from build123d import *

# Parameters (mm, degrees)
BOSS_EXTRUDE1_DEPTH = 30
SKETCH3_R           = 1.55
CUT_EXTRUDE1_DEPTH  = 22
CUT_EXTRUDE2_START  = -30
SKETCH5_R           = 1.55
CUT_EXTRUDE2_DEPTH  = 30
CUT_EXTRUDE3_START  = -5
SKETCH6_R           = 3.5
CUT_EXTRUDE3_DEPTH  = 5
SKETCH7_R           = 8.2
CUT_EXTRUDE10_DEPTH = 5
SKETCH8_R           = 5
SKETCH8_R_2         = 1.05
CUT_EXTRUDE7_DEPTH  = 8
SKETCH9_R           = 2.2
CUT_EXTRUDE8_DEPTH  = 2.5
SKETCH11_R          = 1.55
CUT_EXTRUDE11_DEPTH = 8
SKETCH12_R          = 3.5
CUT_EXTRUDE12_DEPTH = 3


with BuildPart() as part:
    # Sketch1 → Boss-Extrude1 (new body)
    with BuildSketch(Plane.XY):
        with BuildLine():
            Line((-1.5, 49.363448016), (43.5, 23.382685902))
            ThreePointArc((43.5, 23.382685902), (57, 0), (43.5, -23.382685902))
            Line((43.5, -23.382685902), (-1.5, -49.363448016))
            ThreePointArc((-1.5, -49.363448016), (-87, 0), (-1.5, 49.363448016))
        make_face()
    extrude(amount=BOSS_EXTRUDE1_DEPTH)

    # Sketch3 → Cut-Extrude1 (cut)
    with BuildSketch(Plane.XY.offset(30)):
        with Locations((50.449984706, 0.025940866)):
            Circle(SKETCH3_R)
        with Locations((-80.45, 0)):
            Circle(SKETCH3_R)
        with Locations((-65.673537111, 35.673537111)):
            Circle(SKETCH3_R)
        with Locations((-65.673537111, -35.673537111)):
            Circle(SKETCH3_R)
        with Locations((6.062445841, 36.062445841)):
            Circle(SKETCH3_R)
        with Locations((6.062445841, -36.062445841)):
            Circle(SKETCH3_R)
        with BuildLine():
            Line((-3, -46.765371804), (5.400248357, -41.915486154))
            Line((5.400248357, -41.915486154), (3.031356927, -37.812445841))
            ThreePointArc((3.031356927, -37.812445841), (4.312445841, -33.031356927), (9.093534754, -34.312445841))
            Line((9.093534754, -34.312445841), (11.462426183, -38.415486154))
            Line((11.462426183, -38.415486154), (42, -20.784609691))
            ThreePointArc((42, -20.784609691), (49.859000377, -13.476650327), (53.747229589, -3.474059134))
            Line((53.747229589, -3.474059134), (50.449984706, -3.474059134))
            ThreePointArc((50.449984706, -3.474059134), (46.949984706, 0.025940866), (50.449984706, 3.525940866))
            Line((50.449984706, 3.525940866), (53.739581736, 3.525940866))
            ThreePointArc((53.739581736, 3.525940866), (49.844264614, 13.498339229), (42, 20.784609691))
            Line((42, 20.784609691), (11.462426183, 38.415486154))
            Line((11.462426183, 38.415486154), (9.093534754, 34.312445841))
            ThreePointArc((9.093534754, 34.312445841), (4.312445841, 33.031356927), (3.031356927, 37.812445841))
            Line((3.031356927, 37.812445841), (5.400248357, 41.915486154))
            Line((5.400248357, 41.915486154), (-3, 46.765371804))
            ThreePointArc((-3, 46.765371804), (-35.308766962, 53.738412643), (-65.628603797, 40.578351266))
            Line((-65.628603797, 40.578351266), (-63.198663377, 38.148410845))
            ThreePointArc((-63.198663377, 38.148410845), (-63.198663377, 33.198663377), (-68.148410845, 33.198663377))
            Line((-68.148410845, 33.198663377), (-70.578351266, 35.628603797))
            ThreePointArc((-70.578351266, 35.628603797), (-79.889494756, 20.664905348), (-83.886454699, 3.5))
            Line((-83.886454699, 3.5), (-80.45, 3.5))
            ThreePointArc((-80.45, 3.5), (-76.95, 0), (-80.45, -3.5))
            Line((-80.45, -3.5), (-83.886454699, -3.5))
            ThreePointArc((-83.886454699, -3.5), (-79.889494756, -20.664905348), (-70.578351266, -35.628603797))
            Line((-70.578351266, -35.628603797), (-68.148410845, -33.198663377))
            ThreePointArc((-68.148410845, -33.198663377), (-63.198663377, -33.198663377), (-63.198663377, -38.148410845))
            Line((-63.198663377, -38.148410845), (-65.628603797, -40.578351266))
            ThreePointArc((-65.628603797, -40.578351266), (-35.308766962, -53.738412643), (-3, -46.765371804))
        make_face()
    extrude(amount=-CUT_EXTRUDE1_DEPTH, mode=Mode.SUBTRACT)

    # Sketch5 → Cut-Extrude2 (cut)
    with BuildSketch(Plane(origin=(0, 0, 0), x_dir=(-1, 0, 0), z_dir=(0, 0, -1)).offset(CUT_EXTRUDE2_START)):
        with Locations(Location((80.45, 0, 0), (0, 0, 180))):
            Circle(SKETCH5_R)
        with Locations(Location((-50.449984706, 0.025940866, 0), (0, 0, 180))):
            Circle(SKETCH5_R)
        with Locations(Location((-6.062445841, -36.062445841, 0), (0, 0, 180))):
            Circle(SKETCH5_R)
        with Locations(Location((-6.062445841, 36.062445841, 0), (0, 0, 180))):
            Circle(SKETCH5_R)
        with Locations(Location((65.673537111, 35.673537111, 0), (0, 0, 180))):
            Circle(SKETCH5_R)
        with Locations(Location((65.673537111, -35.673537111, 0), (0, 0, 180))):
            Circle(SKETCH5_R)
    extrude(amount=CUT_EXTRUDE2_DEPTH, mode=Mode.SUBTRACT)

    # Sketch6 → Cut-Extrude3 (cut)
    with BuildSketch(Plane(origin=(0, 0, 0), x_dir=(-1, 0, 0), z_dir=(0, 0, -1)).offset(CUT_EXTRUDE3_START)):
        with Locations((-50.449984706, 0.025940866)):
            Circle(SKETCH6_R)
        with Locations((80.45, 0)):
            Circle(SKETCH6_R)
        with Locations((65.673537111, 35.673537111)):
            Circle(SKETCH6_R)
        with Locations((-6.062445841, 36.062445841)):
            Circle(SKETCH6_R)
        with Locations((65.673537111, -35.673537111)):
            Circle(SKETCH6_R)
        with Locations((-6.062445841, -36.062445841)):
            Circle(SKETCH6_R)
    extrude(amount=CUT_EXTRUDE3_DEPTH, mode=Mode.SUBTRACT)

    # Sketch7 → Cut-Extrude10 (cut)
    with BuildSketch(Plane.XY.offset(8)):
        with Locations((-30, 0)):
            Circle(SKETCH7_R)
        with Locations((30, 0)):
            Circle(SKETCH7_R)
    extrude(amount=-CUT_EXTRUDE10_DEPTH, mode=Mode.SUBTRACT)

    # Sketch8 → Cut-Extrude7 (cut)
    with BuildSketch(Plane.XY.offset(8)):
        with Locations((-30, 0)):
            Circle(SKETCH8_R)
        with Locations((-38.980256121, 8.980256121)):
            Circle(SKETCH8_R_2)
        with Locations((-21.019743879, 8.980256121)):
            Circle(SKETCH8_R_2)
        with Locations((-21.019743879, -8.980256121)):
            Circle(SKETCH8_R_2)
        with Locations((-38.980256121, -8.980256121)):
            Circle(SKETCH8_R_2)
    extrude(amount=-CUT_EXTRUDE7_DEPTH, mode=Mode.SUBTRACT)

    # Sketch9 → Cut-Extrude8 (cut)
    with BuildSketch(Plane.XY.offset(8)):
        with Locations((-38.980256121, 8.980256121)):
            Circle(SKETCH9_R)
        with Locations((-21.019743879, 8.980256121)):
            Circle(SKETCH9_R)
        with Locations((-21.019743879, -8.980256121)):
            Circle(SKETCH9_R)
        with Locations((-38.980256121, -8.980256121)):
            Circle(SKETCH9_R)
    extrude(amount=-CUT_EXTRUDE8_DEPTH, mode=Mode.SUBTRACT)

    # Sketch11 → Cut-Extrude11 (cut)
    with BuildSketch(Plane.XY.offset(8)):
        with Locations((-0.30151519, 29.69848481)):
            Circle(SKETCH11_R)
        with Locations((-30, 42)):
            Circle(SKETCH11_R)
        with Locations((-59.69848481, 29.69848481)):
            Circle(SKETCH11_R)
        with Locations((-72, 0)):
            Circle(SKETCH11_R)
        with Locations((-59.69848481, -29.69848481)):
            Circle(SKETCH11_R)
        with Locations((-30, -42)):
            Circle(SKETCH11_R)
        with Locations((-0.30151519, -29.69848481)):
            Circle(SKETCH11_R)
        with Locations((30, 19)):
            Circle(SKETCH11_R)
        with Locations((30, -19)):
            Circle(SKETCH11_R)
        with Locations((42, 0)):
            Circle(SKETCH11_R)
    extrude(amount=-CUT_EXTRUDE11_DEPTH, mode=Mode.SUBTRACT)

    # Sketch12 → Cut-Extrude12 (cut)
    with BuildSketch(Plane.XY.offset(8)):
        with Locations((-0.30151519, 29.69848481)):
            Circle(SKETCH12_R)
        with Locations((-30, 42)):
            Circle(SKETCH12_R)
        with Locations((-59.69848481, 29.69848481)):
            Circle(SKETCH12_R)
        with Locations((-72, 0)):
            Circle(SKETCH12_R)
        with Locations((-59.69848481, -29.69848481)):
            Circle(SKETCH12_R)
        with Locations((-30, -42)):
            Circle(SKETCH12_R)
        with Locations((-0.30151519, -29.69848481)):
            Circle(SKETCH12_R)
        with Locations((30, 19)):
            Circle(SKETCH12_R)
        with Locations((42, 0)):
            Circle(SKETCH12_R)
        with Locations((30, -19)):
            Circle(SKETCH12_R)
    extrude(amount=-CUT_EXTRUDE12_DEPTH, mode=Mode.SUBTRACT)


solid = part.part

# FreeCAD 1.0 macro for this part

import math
import FreeCAD as App
import Part
import Sketcher

V = App.Vector
Q = App.Units.Quantity

doc = App.newDocument("Part")
body = doc.addObject("PartDesign::Body", "Body")

# Sketch on XY plane
sketch1 = body.newObject("Sketcher::SketchObject", "Sketch")
sketch1.AttachmentSupport = (doc.getObject("XY_Plane"), [""])
sketch1.MapMode = "FlatFace"
sketch1.addGeometry([
    Part.LineSegment(V(44, 23, 0), V(-2, 49, 0)),
    Part.ArcOfCircle(Part.Circle(V(-30, 0, 0), V(0, 0, 1), 57), math.radians(60), math.radians(300)),
    Part.LineSegment(V(-2, -49, 0), V(44, -23, 0)),
    Part.ArcOfCircle(Part.Circle(V(30, 0, 0), V(0, 0, 1), 27), math.radians(-60), math.radians(60)),
], False)
sketch1.addConstraint([
    Sketcher.Constraint("Tangent", 0, 2, 1, 1),
    Sketcher.Constraint("Tangent", 1, 2, 2, 1),
    Sketcher.Constraint("Tangent", 2, 2, 3, 1),
    Sketcher.Constraint("Tangent", 3, 2, 0, 1),
    Sketcher.Constraint("Symmetric", 1, 3, 3, 3, -1, 1),
    Sketcher.Constraint("PointOnObject", 1, 3, -1),
    Sketcher.Constraint("Radius", 1, Q("57 mm")),
    Sketcher.Constraint("Radius", 3, Q("27 mm")),
    Sketcher.Constraint("Angle", 0, Q("150 deg")),
])
pad1 = body.newObject("PartDesign::Pad", "Pad")
pad1.Profile = sketch1
pad1.Length = 30

# Sketch on XY plane
sketch2 = body.newObject("Sketcher::SketchObject", "Sketch001")
sketch2.AttachmentSupport = (doc.getObject("XY_Plane"), [""])
sketch2.MapMode = "FlatFace"
sketch2.AttachmentOffset = App.Placement(V(0, 0, 30), App.Rotation())
sketch2.addGeometry([
    Part.Circle(V(50.4, 0, 0), V(0, 0, 1), 1.6),  # 0
    Part.Circle(V(-80.5, 0, 0), V(0, 0, 1), 1.6),  # 1
    Part.Circle(V(-65.7, 35.7, 0), V(0, 0, 1), 1.6),  # 2
    Part.Circle(V(-65.7, -35.7, 0), V(0, 0, 1), 1.6),  # 3
    Part.Circle(V(6.1, 36.1, 0), V(0, 0, 1), 1.6),  # 4
    Part.Circle(V(6.1, -36.1, 0), V(0, 0, 1), 1.6),  # 5
    Part.LineSegment(V(-3, -46.8, 0), V(5.4, -41.9, 0)),  # 6
    Part.LineSegment(V(5.4, -41.9, 0), V(3, -37.8, 0)),  # 7
    Part.ArcOfCircle(Part.Circle(V(6.1, -36.1, 0), V(0, 0, 1), 3.5), math.radians(30), math.radians(210)),  # 8
    Part.LineSegment(V(9.1, -34.3, 0), V(11.5, -38.4, 0)),  # 9
    Part.LineSegment(V(11.5, -38.4, 0), V(42, -20.8, 0)),  # 10
    Part.ArcOfCircle(Part.Circle(V(30, 0, 0), V(0, 0, 1), 24), math.radians(-60), math.radians(-8)),  # 11
    Part.LineSegment(V(53.7, -3.5, 0), V(50.4, -3.5, 0)),  # 12
    Part.ArcOfCircle(Part.Circle(V(50.4, 0, 0), V(0, 0, 1), 3.5), math.radians(90), math.radians(270)),  # 13
    Part.LineSegment(V(50.4, 3.5, 0), V(53.7, 3.5, 0)),  # 14
    Part.ArcOfCircle(Part.Circle(V(30, 0, 0), V(0, 0, 1), 24), math.radians(8), math.radians(60)),  # 15
    Part.LineSegment(V(42, 20.8, 0), V(11.5, 38.4, 0)),  # 16
    Part.LineSegment(V(11.5, 38.4, 0), V(9.1, 34.3, 0)),  # 17
    Part.ArcOfCircle(Part.Circle(V(6.1, 36.1, 0), V(0, 0, 1), 3.5), math.radians(150), math.radians(330)),  # 18
    Part.LineSegment(V(3, 37.8, 0), V(5.4, 41.9, 0)),  # 19
    Part.LineSegment(V(5.4, 41.9, 0), V(-3, 46.8, 0)),  # 20
    Part.ArcOfCircle(Part.Circle(V(-30, 0, 0), V(0, 0, 1), 54), math.radians(60), math.radians(131)),  # 21
    Part.LineSegment(V(-65.6, 40.6, 0), V(-63.2, 38.1, 0)),  # 22
    Part.ArcOfCircle(Part.Circle(V(-65.7, 35.7, 0), V(0, 0, 1), 3.5), math.radians(-135), math.radians(45)),  # 23
    Part.LineSegment(V(-68.1, 33.2, 0), V(-70.6, 35.6, 0)),  # 24
    Part.ArcOfCircle(Part.Circle(V(-30, 0, 0), V(0, 0, 1), 54), math.radians(139), math.radians(176)),  # 25
    Part.LineSegment(V(-83.9, 3.5, 0), V(-80.5, 3.5, 0)),  # 26
    Part.ArcOfCircle(Part.Circle(V(-80.5, 0, 0), V(0, 0, 1), 3.5), math.radians(-90), math.radians(90)),  # 27
    Part.LineSegment(V(-80.5, -3.5, 0), V(-83.9, -3.5, 0)),  # 28
    Part.ArcOfCircle(Part.Circle(V(-30, 0, 0), V(0, 0, 1), 54), math.radians(-176), math.radians(-139)),  # 29
    Part.LineSegment(V(-70.6, -35.6, 0), V(-68.1, -33.2, 0)),  # 30
    Part.ArcOfCircle(Part.Circle(V(-65.7, -35.7, 0), V(0, 0, 1), 3.5), math.radians(-45), math.radians(135)),  # 31
    Part.LineSegment(V(-63.2, -38.1, 0), V(-65.6, -40.6, 0)),  # 32
    Part.ArcOfCircle(Part.Circle(V(-30, 0, 0), V(0, 0, 1), 54), math.radians(-131), math.radians(-60)),  # 33
], False)
sketch2.addConstraint([
    Sketcher.Constraint("Coincident", 6, 2, 7, 1),
    Sketcher.Constraint("Tangent", 7, 2, 8, 2),
    Sketcher.Constraint("Tangent", 8, 1, 9, 1),
    Sketcher.Constraint("Coincident", 9, 2, 10, 1),
    Sketcher.Constraint("Tangent", 10, 2, 11, 1),
    Sketcher.Constraint("Coincident", 11, 2, 12, 1),
    Sketcher.Constraint("Tangent", 12, 2, 13, 2),
    Sketcher.Constraint("Tangent", 13, 1, 14, 1),
    Sketcher.Constraint("Coincident", 14, 2, 15, 1),
    Sketcher.Constraint("Tangent", 15, 2, 16, 1),
    Sketcher.Constraint("Coincident", 16, 2, 17, 1),
    Sketcher.Constraint("Tangent", 17, 2, 18, 2),
    Sketcher.Constraint("Tangent", 18, 1, 19, 1),
    Sketcher.Constraint("Coincident", 19, 2, 20, 1),
    Sketcher.Constraint("Tangent", 20, 2, 21, 1),
    Sketcher.Constraint("Coincident", 21, 2, 22, 1),
    Sketcher.Constraint("Tangent", 22, 2, 23, 2),
    Sketcher.Constraint("Tangent", 23, 1, 24, 1),
    Sketcher.Constraint("Coincident", 24, 2, 25, 1),
    Sketcher.Constraint("Coincident", 25, 2, 26, 1),
    Sketcher.Constraint("Tangent", 26, 2, 27, 2),
    Sketcher.Constraint("Tangent", 27, 1, 28, 1),
    Sketcher.Constraint("Coincident", 28, 2, 29, 1),
    Sketcher.Constraint("Coincident", 29, 2, 30, 1),
    Sketcher.Constraint("Tangent", 30, 2, 31, 2),
    Sketcher.Constraint("Tangent", 31, 1, 32, 1),
    Sketcher.Constraint("Coincident", 32, 2, 33, 1),
    Sketcher.Constraint("Tangent", 33, 2, 6, 1),
    Sketcher.Constraint("Horizontal", 12),
    Sketcher.Constraint("Horizontal", 14),
    Sketcher.Constraint("Horizontal", 26),
    Sketcher.Constraint("Horizontal", 28),
    Sketcher.Constraint("Coincident", 8, 3, 5, 3),
    Sketcher.Constraint("Coincident", 13, 3, 0, 3),
    Sketcher.Constraint("Coincident", 15, 3, 11, 3),
    Sketcher.Constraint("Coincident", 18, 3, 4, 3),
    Sketcher.Constraint("Coincident", 23, 3, 2, 3),
    Sketcher.Constraint("Coincident", 25, 3, 21, 3),
    Sketcher.Constraint("Coincident", 27, 3, 1, 3),
    Sketcher.Constraint("Coincident", 29, 3, 21, 3),
    Sketcher.Constraint("Coincident", 31, 3, 3, 3),
    Sketcher.Constraint("Coincident", 33, 3, 21, 3),
    Sketcher.Constraint("Equal", 0, 1),
    Sketcher.Constraint("Equal", 1, 2),
    Sketcher.Constraint("Equal", 2, 3),
    Sketcher.Constraint("Equal", 3, 4),
    Sketcher.Constraint("Equal", 4, 5),
    Sketcher.Constraint("Equal", 8, 13),
    Sketcher.Constraint("Equal", 11, 15),
    Sketcher.Constraint("Equal", 13, 18),
    Sketcher.Constraint("Equal", 18, 23),
    Sketcher.Constraint("Equal", 21, 25),
    Sketcher.Constraint("Equal", 23, 27),
    Sketcher.Constraint("Equal", 25, 29),
    Sketcher.Constraint("Equal", 27, 31),
    Sketcher.Constraint("Equal", 29, 33),
    Sketcher.Constraint("Symmetric", 11, 3, 21, 3, -1, 1),
    Sketcher.Constraint("Symmetric", 2, 3, 3, 3, -1),
    Sketcher.Constraint("Symmetric", 4, 3, 5, 3, -1),
    Sketcher.Constraint("Symmetric", 10, 2, 15, 2, -1),
    Sketcher.Constraint("Symmetric", 6, 2, 19, 2, -1),
    Sketcher.Constraint("PointOnObject", 1, 3, -1),
    Sketcher.Constraint("Perpendicular", 6, 7),
    Sketcher.Constraint("Parallel", 7, 9),
    Sketcher.Constraint("Perpendicular", 9, 10),
    Sketcher.Constraint("Perpendicular", 16, 17),
    Sketcher.Constraint("Parallel", 22, 24),
    Sketcher.Constraint("Perpendicular", 24, 30),
    Sketcher.Constraint("Parallel", 30, 32),
    Sketcher.Constraint("Vertical", 24, 2, 29, 2),
    Sketcher.Constraint("Equal", 7, 9),
    Sketcher.Constraint("Equal", 22, 24),
    Sketcher.Constraint("Radius", 11, Q("24 mm")),
    Sketcher.Constraint("Radius", 21, Q("54 mm")),
    Sketcher.Constraint("Diameter", 0, Q("3.1 mm")),
    Sketcher.Constraint("Radius", 8, Q("3.5 mm")),
    Sketcher.Constraint("Angle", 6, Q("30 deg")),
    Sketcher.Constraint("DistanceX", 1, 3, -1, 1, Q("80.45 mm")),
    Sketcher.Constraint("Distance", 6, Q("9.699771 mm")),
    Sketcher.Constraint("DistanceX", 12, 2, 12, 1, Q("3.297245 mm")),
    Sketcher.Constraint("DistanceX", 14, 1, 14, 2, Q("3.289597 mm")),
    Sketcher.Constraint("DistanceY", -1, 1, 22, 2, Q("38.148411 mm")),
    Sketcher.Constraint("DistanceX", 4, 3, 0, 3, Q("44.387539 mm")),
])
pocket1 = body.newObject("PartDesign::Pocket", "Pocket")
pocket1.Profile = sketch2
pocket1.Length = 22

# Sketch on XY plane
sketch3 = body.newObject("Sketcher::SketchObject", "Sketch002")
sketch3.AttachmentSupport = (doc.getObject("XY_Plane"), [""])
sketch3.MapMode = "FlatFace"
sketch3.AttachmentOffset = App.Placement(V(0, 0, 30), App.Rotation())
sketch3.addGeometry([
    Part.Circle(V(-80.5, 0, 0), V(0, 0, 1), 1.6),  # 0
    Part.Circle(V(50.4, 0, 0), V(0, 0, 1), 1.6),  # 1
    Part.Circle(V(6.1, -36.1, 0), V(0, 0, 1), 1.6),  # 2
    Part.Circle(V(6.1, 36.1, 0), V(0, 0, 1), 1.6),  # 3
    Part.Circle(V(-65.7, 35.7, 0), V(0, 0, 1), 1.6),  # 4
    Part.Circle(V(-65.7, -35.7, 0), V(0, 0, 1), 1.6),  # 5
], False)
sketch3.addConstraint([
    Sketcher.Constraint("Equal", 0, 1),
    Sketcher.Constraint("Equal", 1, 2),
    Sketcher.Constraint("Equal", 2, 3),
    Sketcher.Constraint("Equal", 3, 4),
    Sketcher.Constraint("Equal", 4, 5),
    Sketcher.Constraint("Symmetric", 2, 3, 3, 3, -1),
    Sketcher.Constraint("Symmetric", 4, 3, 5, 3, -1),
    Sketcher.Constraint("PointOnObject", 0, 3, -1),
    Sketcher.Constraint("Diameter", 0, Q("3.1 mm")),
    Sketcher.Constraint("DistanceX", 0, 3, -1, 1, Q("80.45 mm")),
    Sketcher.Constraint("DistanceY", -1, 1, 1, 3, Q("0.025941 mm")),
    Sketcher.Constraint("DistanceX", 2, 3, 1, 3, Q("44.387539 mm")),
    Sketcher.Constraint("DistanceY", 2, 3, 3, 3, Q("72.124892 mm")),
    Sketcher.Constraint("DistanceY", 4, 3, 3, 3, Q("0.388909 mm")),
    Sketcher.Constraint("DistanceX", 4, 3, 1, 3, Q("116.123522 mm")),
    Sketcher.Constraint("DistanceX", -1, 1, 1, 3, Q("50.449985 mm")),
])
pocket2 = body.newObject("PartDesign::Pocket", "Pocket001")
pocket2.Profile = sketch3
pocket2.Length = 30

# Sketch on XY plane
sketch4 = body.newObject("Sketcher::SketchObject", "Sketch003")
sketch4.AttachmentSupport = (doc.getObject("XY_Plane"), [""])
sketch4.MapMode = "FlatFace"
sketch4.AttachmentOffset = App.Placement(V(0, 0, 5), App.Rotation())
sketch4.addGeometry([
    Part.Circle(V(50.4, 0, 0), V(0, 0, 1), 3.5),  # 0
    Part.Circle(V(-80.5, 0, 0), V(0, 0, 1), 3.5),  # 1
    Part.Circle(V(-65.7, 35.7, 0), V(0, 0, 1), 3.5),  # 2
    Part.Circle(V(6.1, 36.1, 0), V(0, 0, 1), 3.5),  # 3
    Part.Circle(V(-65.7, -35.7, 0), V(0, 0, 1), 3.5),  # 4
    Part.Circle(V(6.1, -36.1, 0), V(0, 0, 1), 3.5),  # 5
], False)
sketch4.addConstraint([
    Sketcher.Constraint("Equal", 0, 1),
    Sketcher.Constraint("Equal", 1, 2),
    Sketcher.Constraint("Equal", 2, 3),
    Sketcher.Constraint("Equal", 3, 4),
    Sketcher.Constraint("Equal", 4, 5),
    Sketcher.Constraint("Symmetric", 2, 3, 4, 3, -1),
    Sketcher.Constraint("Symmetric", 3, 3, 5, 3, -1),
    Sketcher.Constraint("PointOnObject", 1, 3, -1),
    Sketcher.Constraint("Diameter", 0, Q("7 mm")),
    Sketcher.Constraint("DistanceX", 1, 3, -1, 1, Q("80.45 mm")),
    Sketcher.Constraint("DistanceY", -1, 1, 0, 3, Q("0.025941 mm")),
    Sketcher.Constraint("DistanceX", 2, 3, 0, 3, Q("116.123522 mm")),
    Sketcher.Constraint("DistanceX", 3, 3, 0, 3, Q("44.387539 mm")),
    Sketcher.Constraint("DistanceY", 2, 3, 3, 3, Q("0.388909 mm")),
    Sketcher.Constraint("DistanceY", 5, 3, 3, 3, Q("72.124892 mm")),
    Sketcher.Constraint("DistanceX", -1, 1, 0, 3, Q("50.449985 mm")),
])
pocket3 = body.newObject("PartDesign::Pocket", "Pocket002")
pocket3.Profile = sketch4
pocket3.Length = 5

# Sketch on XY plane
sketch5 = body.newObject("Sketcher::SketchObject", "Sketch004")
sketch5.AttachmentSupport = (doc.getObject("XY_Plane"), [""])
sketch5.MapMode = "FlatFace"
sketch5.AttachmentOffset = App.Placement(V(0, 0, 8), App.Rotation())
sketch5.addGeometry([
    Part.Circle(V(-30, 0, 0), V(0, 0, 1), 8),
    Part.Circle(V(30, 0, 0), V(0, 0, 1), 8),
], False)
sketch5.addConstraint([
    Sketcher.Constraint("Equal", 0, 1),
    Sketcher.Constraint("Symmetric", 0, 3, 1, 3, -1, 1),
    Sketcher.Constraint("PointOnObject", 0, 3, -1),
    Sketcher.Constraint("Diameter", 0, Q("16.4 mm")),
    Sketcher.Constraint("DistanceX", 0, 3, -1, 1, Q("30 mm")),
])
pocket4 = body.newObject("PartDesign::Pocket", "Pocket003")
pocket4.Profile = sketch5
pocket4.Length = 5

# Sketch on XY plane
sketch6 = body.newObject("Sketcher::SketchObject", "Sketch005")
sketch6.AttachmentSupport = (doc.getObject("XY_Plane"), [""])
sketch6.MapMode = "FlatFace"
sketch6.AttachmentOffset = App.Placement(V(0, 0, 8), App.Rotation())
sketch6.addGeometry([
    Part.Circle(V(-30, 0, 0), V(0, 0, 1), 5),  # 0
    Part.Circle(V(-39, 9, 0), V(0, 0, 1), 1.1),  # 1
    Part.Circle(V(-21, 9, 0), V(0, 0, 1), 1.1),  # 2
    Part.Circle(V(-21, -9, 0), V(0, 0, 1), 1.1),  # 3
    Part.Circle(V(-39, -9, 0), V(0, 0, 1), 1.1),  # 4
], False)
sketch6.addConstraint([
    Sketcher.Constraint("Equal", 1, 2),
    Sketcher.Constraint("Equal", 2, 3),
    Sketcher.Constraint("Equal", 3, 4),
    Sketcher.Constraint("Symmetric", 2, 3, 3, 3, -1),
    Sketcher.Constraint("Symmetric", 1, 3, 4, 3, -1),
    Sketcher.Constraint("PointOnObject", 0, 3, -1),
    Sketcher.Constraint("Horizontal", 1, 3, 2, 3),
    Sketcher.Constraint("Diameter", 0, Q("10 mm")),
    Sketcher.Constraint("Diameter", 1, Q("2.1 mm")),
    Sketcher.Constraint("DistanceX", 0, 3, -1, 1, Q("30 mm")),
    Sketcher.Constraint("DistanceX", 1, 3, -1, 1, Q("38.980256 mm")),
    Sketcher.Constraint("DistanceY", -1, 1, 1, 3, Q("8.980256 mm")),
    Sketcher.Constraint("DistanceX", 2, 3, -1, 1, Q("21.019744 mm")),
])
pocket5 = body.newObject("PartDesign::Pocket", "Pocket004")
pocket5.Profile = sketch6
pocket5.Length = 8

# Sketch on XY plane
sketch7 = body.newObject("Sketcher::SketchObject", "Sketch006")
sketch7.AttachmentSupport = (doc.getObject("XY_Plane"), [""])
sketch7.MapMode = "FlatFace"
sketch7.AttachmentOffset = App.Placement(V(0, 0, 8), App.Rotation())
sketch7.addGeometry([
    Part.Circle(V(-39, 9, 0), V(0, 0, 1), 2.2),
    Part.Circle(V(-21, 9, 0), V(0, 0, 1), 2.2),
    Part.Circle(V(-21, -9, 0), V(0, 0, 1), 2.2),
    Part.Circle(V(-39, -9, 0), V(0, 0, 1), 2.2),
], False)
sketch7.addConstraint([
    Sketcher.Constraint("Equal", 0, 1),
    Sketcher.Constraint("Equal", 1, 2),
    Sketcher.Constraint("Equal", 2, 3),
    Sketcher.Constraint("Symmetric", 1, 3, 2, 3, -1),
    Sketcher.Constraint("Symmetric", 0, 3, 3, 3, -1),
    Sketcher.Constraint("Horizontal", 0, 3, 1, 3),
    Sketcher.Constraint("Diameter", 0, Q("4.4 mm")),
    Sketcher.Constraint("DistanceX", 0, 3, -1, 1, Q("38.980256 mm")),
    Sketcher.Constraint("DistanceY", -1, 1, 0, 3, Q("8.980256 mm")),
    Sketcher.Constraint("DistanceX", 1, 3, -1, 1, Q("21.019744 mm")),
])
pocket6 = body.newObject("PartDesign::Pocket", "Pocket005")
pocket6.Profile = sketch7
pocket6.Length = 2.5

# Sketch on XY plane
sketch8 = body.newObject("Sketcher::SketchObject", "Sketch007")
sketch8.AttachmentSupport = (doc.getObject("XY_Plane"), [""])
sketch8.MapMode = "FlatFace"
sketch8.AttachmentOffset = App.Placement(V(0, 0, 8), App.Rotation())
sketch8.addGeometry([
    Part.Circle(V(-0.3, 29.7, 0), V(0, 0, 1), 1.6),  # 0
    Part.Circle(V(-30, 42, 0), V(0, 0, 1), 1.6),  # 1
    Part.Circle(V(-59.7, 29.7, 0), V(0, 0, 1), 1.6),  # 2
    Part.Circle(V(-72, 0, 0), V(0, 0, 1), 1.6),  # 3
    Part.Circle(V(-59.7, -29.7, 0), V(0, 0, 1), 1.6),  # 4
    Part.Circle(V(-30, -42, 0), V(0, 0, 1), 1.6),  # 5
    Part.Circle(V(-0.3, -29.7, 0), V(0, 0, 1), 1.6),  # 6
    Part.Circle(V(30, 19, 0), V(0, 0, 1), 1.6),  # 7
    Part.Circle(V(30, -19, 0), V(0, 0, 1), 1.6),  # 8
    Part.Circle(V(42, 0, 0), V(0, 0, 1), 1.6),  # 9
], False)
sketch8.addConstraint([
    Sketcher.Constraint("Equal", 0, 1),
    Sketcher.Constraint("Equal", 1, 2),
    Sketcher.Constraint("Equal", 2, 3),
    Sketcher.Constraint("Equal", 3, 4),
    Sketcher.Constraint("Equal", 4, 5),
    Sketcher.Constraint("Equal", 5, 6),
    Sketcher.Constraint("Equal", 6, 7),
    Sketcher.Constraint("Equal", 7, 8),
    Sketcher.Constraint("Equal", 8, 9),
    Sketcher.Constraint("Symmetric", 2, 3, 4, 3, -1),
    Sketcher.Constraint("Symmetric", 1, 3, 5, 3, -1),
    Sketcher.Constraint("Symmetric", 0, 3, 6, 3, -1),
    Sketcher.Constraint("Symmetric", 7, 3, 8, 3, -1),
    Sketcher.Constraint("PointOnObject", 3, 3, -1),
    Sketcher.Constraint("PointOnObject", 9, 3, -1),
    Sketcher.Constraint("Horizontal", 0, 3, 2, 3),
    Sketcher.Constraint("Diameter", 0, Q("3.1 mm")),
    Sketcher.Constraint("DistanceX", 1, 3, -1, 1, Q("30 mm")),
    Sketcher.Constraint("DistanceY", -1, 1, 1, 3, Q("42 mm")),
    Sketcher.Constraint("DistanceX", 3, 3, -1, 1, Q("72 mm")),
    Sketcher.Constraint("DistanceX", -1, 1, 7, 3, Q("30 mm")),
    Sketcher.Constraint("DistanceY", -1, 1, 7, 3, Q("19 mm")),
    Sketcher.Constraint("DistanceX", -1, 1, 9, 3, Q("42 mm")),
    Sketcher.Constraint("DistanceX", 2, 3, 0, 3, Q("59.39697 mm")),
    Sketcher.Constraint("DistanceY", 4, 3, 2, 3, Q("59.39697 mm")),
    Sketcher.Constraint("DistanceX", 0, 3, -1, 1, Q("0.301515 mm")),
])
pocket7 = body.newObject("PartDesign::Pocket", "Pocket006")
pocket7.Profile = sketch8
pocket7.Length = 8

# Sketch on XY plane
sketch9 = body.newObject("Sketcher::SketchObject", "Sketch008")
sketch9.AttachmentSupport = (doc.getObject("XY_Plane"), [""])
sketch9.MapMode = "FlatFace"
sketch9.AttachmentOffset = App.Placement(V(0, 0, 8), App.Rotation())
sketch9.addGeometry([
    Part.Circle(V(-0.3, 29.7, 0), V(0, 0, 1), 3.5),  # 0
    Part.Circle(V(-30, 42, 0), V(0, 0, 1), 3.5),  # 1
    Part.Circle(V(-59.7, 29.7, 0), V(0, 0, 1), 3.5),  # 2
    Part.Circle(V(-72, 0, 0), V(0, 0, 1), 3.5),  # 3
    Part.Circle(V(-59.7, -29.7, 0), V(0, 0, 1), 3.5),  # 4
    Part.Circle(V(-30, -42, 0), V(0, 0, 1), 3.5),  # 5
    Part.Circle(V(-0.3, -29.7, 0), V(0, 0, 1), 3.5),  # 6
    Part.Circle(V(30, 19, 0), V(0, 0, 1), 3.5),  # 7
    Part.Circle(V(42, 0, 0), V(0, 0, 1), 3.5),  # 8
    Part.Circle(V(30, -19, 0), V(0, 0, 1), 3.5),  # 9
], False)
sketch9.addConstraint([
    Sketcher.Constraint("Equal", 0, 1),
    Sketcher.Constraint("Equal", 1, 2),
    Sketcher.Constraint("Equal", 2, 3),
    Sketcher.Constraint("Equal", 3, 4),
    Sketcher.Constraint("Equal", 4, 5),
    Sketcher.Constraint("Equal", 5, 6),
    Sketcher.Constraint("Equal", 6, 7),
    Sketcher.Constraint("Equal", 7, 8),
    Sketcher.Constraint("Equal", 8, 9),
    Sketcher.Constraint("Symmetric", 2, 3, 4, 3, -1),
    Sketcher.Constraint("Symmetric", 1, 3, 5, 3, -1),
    Sketcher.Constraint("Symmetric", 0, 3, 6, 3, -1),
    Sketcher.Constraint("Symmetric", 7, 3, 9, 3, -1),
    Sketcher.Constraint("PointOnObject", 3, 3, -1),
    Sketcher.Constraint("PointOnObject", 8, 3, -1),
    Sketcher.Constraint("Horizontal", 0, 3, 2, 3),
    Sketcher.Constraint("Diameter", 0, Q("7 mm")),
    Sketcher.Constraint("DistanceX", 1, 3, -1, 1, Q("30 mm")),
    Sketcher.Constraint("DistanceY", -1, 1, 1, 3, Q("42 mm")),
    Sketcher.Constraint("DistanceX", 3, 3, -1, 1, Q("72 mm")),
    Sketcher.Constraint("DistanceX", -1, 1, 7, 3, Q("30 mm")),
    Sketcher.Constraint("DistanceY", -1, 1, 7, 3, Q("19 mm")),
    Sketcher.Constraint("DistanceX", -1, 1, 8, 3, Q("42 mm")),
    Sketcher.Constraint("DistanceX", 2, 3, 0, 3, Q("59.39697 mm")),
    Sketcher.Constraint("DistanceY", 4, 3, 2, 3, Q("59.39697 mm")),
    Sketcher.Constraint("DistanceX", 0, 3, -1, 1, Q("0.301515 mm")),
])
pocket8 = body.newObject("PartDesign::Pocket", "Pocket007")
pocket8.Profile = sketch9
pocket8.Length = 3

doc.recompute()
